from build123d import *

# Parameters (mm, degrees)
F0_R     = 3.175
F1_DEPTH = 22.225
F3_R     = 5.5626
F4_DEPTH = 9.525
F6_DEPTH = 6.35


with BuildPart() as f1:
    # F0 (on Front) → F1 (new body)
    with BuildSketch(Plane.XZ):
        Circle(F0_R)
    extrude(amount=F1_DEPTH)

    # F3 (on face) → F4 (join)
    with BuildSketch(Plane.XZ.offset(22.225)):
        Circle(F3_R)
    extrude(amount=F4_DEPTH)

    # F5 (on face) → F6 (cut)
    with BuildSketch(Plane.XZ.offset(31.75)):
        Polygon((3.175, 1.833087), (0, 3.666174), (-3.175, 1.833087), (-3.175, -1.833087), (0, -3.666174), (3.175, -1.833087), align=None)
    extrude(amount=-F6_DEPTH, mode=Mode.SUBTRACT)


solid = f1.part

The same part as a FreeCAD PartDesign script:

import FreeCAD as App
import Part
import Sketcher
Q = App.Units.Quantity

doc = App.newDocument("Part")
params = doc.addObject("Spreadsheet::Sheet", "Params")
for row, (alias, value) in enumerate([
    ("sketch1_diameter", "0.25 in"),
    ("pad1_length", "0.875 in"),
    ("sketch2_diameter", "0.438 in"),
    ("pad2_length", "0.375 in"),
    ("pocket1_length", "0.25 in"),
], start=1):
    params.set(f"A{row}", alias)
    params.set(f"B{row}", "=" + value)
    params.setAlias(f"B{row}", alias)

body = doc.addObject("PartDesign::Body", "Body")

# Sketch on XZ plane
sketch1 = body.newObject("Sketcher::SketchObject", "Sketch")
sketch1.AttachmentSupport = (doc.getObject("XZ_Plane"), [""])
sketch1.MapMode = "FlatFace"
sketch1.addGeometry(Part.Circle(App.Vector(0, 0, 0), App.Vector(0, 0, 1), 3.175), False)
sketch1.addConstraint([
    Sketcher.Constraint("Coincident", 0, 3, -1, 1),
    Sketcher.Constraint("Diameter", 0, Q("0.25 in")),
])
sketch1.setExpression("Constraints[1]", "Params.sketch1_diameter")
pad1 = body.newObject("PartDesign::Pad", "Pad")
pad1.Profile = sketch1
pad1.setExpression("Length", "Params.pad1_length")

# Sketch on XZ plane
sketch2 = body.newObject("Sketcher::SketchObject", "Sketch001")
sketch2.AttachmentSupport = (doc.getObject("XZ_Plane"), [""])
sketch2.MapMode = "FlatFace"
sketch2.AttachmentOffset = App.Placement(App.Vector(0, 0, 0.875 * 25.4), App.Rotation())
sketch2.addGeometry(Part.Circle(App.Vector(0, 0, 0), App.Vector(0, 0, 1), 5.5626), False)
sketch2.addConstraint([
    Sketcher.Constraint("Coincident", 0, 3, -1, 1),
    Sketcher.Constraint("Diameter", 0, Q("0.438 in")),
])
sketch2.setExpression("Constraints[1]", "Params.sketch2_diameter")
pad2 = body.newObject("PartDesign::Pad", "Pad001")
pad2.Profile = sketch2
pad2.setExpression("Length", "Params.pad2_length")

# Sketch on XZ plane
sketch3 = body.newObject("Sketcher::SketchObject", "Sketch002")
sketch3.AttachmentSupport = (doc.getObject("XZ_Plane"), [""])
sketch3.MapMode = "FlatFace"
sketch3.AttachmentOffset = App.Placement(App.Vector(0, 0, 1.25 * 25.4), App.Rotation())
sketch3.addGeometry([
    Part.LineSegment(App.Vector(3.175, 1.833087, 0), App.Vector(0, 3.666174, 0)),  # 0
    Part.LineSegment(App.Vector(0, 3.666174, 0), App.Vector(-3.175, 1.833087, 0)),  # 1
    Part.LineSegment(App.Vector(-3.175, 1.833087, 0), App.Vector(-3.175, -1.833087, 0)),  # 2
    Part.LineSegment(App.Vector(-3.175, -1.833087, 0), App.Vector(0, -3.666174, 0)),  # 3
    Part.LineSegment(App.Vector(0, -3.666174, 0), App.Vector(3.175, -1.833087, 0)),  # 4
    Part.LineSegment(App.Vector(3.175, -1.833087, 0), App.Vector(3.175, 1.833087, 0)),  # 5
], False)
sketch3.addConstraint([
    Sketcher.Constraint("Coincident", 0, 2, 1, 1),
    Sketcher.Constraint("Coincident", 1, 2, 2, 1),
    Sketcher.Constraint("Coincident", 2, 2, 3, 1),
    Sketcher.Constraint("Coincident", 3, 2, 4, 1),
    Sketcher.Constraint("Coincident", 4, 2, 5, 1),
    Sketcher.Constraint("Coincident", 5, 2, 0, 1),
    Sketcher.Constraint("Vertical", 2),
    Sketcher.Constraint("Vertical", 5),
    Sketcher.Constraint("Symmetric", 0, 2, 3, 2, -1, 1),
    Sketcher.Constraint("Symmetric", 1, 2, 4, 2, -1, 1),
    Sketcher.Constraint("PointOnObject", 0, 2, -2),
    Sketcher.Constraint("Parallel", 0, 3),
    Sketcher.Constraint("Horizontal", 2, 2, 4, 2),
    Sketcher.Constraint("Angle", 0, Q("150.000001 deg")),
    Sketcher.Constraint("DistanceX", 2, 2, 4, 2, Q("0.25 in")),
    Sketcher.Constraint("DistanceY", 2, 2, 2, 1, Q("3.666174 mm")),
])
pocket1 = body.newObject("PartDesign::Pocket", "Pocket")
pocket1.Profile = sketch3
pocket1.setExpression("Length", "Params.pocket1_length")

doc.recompute()
